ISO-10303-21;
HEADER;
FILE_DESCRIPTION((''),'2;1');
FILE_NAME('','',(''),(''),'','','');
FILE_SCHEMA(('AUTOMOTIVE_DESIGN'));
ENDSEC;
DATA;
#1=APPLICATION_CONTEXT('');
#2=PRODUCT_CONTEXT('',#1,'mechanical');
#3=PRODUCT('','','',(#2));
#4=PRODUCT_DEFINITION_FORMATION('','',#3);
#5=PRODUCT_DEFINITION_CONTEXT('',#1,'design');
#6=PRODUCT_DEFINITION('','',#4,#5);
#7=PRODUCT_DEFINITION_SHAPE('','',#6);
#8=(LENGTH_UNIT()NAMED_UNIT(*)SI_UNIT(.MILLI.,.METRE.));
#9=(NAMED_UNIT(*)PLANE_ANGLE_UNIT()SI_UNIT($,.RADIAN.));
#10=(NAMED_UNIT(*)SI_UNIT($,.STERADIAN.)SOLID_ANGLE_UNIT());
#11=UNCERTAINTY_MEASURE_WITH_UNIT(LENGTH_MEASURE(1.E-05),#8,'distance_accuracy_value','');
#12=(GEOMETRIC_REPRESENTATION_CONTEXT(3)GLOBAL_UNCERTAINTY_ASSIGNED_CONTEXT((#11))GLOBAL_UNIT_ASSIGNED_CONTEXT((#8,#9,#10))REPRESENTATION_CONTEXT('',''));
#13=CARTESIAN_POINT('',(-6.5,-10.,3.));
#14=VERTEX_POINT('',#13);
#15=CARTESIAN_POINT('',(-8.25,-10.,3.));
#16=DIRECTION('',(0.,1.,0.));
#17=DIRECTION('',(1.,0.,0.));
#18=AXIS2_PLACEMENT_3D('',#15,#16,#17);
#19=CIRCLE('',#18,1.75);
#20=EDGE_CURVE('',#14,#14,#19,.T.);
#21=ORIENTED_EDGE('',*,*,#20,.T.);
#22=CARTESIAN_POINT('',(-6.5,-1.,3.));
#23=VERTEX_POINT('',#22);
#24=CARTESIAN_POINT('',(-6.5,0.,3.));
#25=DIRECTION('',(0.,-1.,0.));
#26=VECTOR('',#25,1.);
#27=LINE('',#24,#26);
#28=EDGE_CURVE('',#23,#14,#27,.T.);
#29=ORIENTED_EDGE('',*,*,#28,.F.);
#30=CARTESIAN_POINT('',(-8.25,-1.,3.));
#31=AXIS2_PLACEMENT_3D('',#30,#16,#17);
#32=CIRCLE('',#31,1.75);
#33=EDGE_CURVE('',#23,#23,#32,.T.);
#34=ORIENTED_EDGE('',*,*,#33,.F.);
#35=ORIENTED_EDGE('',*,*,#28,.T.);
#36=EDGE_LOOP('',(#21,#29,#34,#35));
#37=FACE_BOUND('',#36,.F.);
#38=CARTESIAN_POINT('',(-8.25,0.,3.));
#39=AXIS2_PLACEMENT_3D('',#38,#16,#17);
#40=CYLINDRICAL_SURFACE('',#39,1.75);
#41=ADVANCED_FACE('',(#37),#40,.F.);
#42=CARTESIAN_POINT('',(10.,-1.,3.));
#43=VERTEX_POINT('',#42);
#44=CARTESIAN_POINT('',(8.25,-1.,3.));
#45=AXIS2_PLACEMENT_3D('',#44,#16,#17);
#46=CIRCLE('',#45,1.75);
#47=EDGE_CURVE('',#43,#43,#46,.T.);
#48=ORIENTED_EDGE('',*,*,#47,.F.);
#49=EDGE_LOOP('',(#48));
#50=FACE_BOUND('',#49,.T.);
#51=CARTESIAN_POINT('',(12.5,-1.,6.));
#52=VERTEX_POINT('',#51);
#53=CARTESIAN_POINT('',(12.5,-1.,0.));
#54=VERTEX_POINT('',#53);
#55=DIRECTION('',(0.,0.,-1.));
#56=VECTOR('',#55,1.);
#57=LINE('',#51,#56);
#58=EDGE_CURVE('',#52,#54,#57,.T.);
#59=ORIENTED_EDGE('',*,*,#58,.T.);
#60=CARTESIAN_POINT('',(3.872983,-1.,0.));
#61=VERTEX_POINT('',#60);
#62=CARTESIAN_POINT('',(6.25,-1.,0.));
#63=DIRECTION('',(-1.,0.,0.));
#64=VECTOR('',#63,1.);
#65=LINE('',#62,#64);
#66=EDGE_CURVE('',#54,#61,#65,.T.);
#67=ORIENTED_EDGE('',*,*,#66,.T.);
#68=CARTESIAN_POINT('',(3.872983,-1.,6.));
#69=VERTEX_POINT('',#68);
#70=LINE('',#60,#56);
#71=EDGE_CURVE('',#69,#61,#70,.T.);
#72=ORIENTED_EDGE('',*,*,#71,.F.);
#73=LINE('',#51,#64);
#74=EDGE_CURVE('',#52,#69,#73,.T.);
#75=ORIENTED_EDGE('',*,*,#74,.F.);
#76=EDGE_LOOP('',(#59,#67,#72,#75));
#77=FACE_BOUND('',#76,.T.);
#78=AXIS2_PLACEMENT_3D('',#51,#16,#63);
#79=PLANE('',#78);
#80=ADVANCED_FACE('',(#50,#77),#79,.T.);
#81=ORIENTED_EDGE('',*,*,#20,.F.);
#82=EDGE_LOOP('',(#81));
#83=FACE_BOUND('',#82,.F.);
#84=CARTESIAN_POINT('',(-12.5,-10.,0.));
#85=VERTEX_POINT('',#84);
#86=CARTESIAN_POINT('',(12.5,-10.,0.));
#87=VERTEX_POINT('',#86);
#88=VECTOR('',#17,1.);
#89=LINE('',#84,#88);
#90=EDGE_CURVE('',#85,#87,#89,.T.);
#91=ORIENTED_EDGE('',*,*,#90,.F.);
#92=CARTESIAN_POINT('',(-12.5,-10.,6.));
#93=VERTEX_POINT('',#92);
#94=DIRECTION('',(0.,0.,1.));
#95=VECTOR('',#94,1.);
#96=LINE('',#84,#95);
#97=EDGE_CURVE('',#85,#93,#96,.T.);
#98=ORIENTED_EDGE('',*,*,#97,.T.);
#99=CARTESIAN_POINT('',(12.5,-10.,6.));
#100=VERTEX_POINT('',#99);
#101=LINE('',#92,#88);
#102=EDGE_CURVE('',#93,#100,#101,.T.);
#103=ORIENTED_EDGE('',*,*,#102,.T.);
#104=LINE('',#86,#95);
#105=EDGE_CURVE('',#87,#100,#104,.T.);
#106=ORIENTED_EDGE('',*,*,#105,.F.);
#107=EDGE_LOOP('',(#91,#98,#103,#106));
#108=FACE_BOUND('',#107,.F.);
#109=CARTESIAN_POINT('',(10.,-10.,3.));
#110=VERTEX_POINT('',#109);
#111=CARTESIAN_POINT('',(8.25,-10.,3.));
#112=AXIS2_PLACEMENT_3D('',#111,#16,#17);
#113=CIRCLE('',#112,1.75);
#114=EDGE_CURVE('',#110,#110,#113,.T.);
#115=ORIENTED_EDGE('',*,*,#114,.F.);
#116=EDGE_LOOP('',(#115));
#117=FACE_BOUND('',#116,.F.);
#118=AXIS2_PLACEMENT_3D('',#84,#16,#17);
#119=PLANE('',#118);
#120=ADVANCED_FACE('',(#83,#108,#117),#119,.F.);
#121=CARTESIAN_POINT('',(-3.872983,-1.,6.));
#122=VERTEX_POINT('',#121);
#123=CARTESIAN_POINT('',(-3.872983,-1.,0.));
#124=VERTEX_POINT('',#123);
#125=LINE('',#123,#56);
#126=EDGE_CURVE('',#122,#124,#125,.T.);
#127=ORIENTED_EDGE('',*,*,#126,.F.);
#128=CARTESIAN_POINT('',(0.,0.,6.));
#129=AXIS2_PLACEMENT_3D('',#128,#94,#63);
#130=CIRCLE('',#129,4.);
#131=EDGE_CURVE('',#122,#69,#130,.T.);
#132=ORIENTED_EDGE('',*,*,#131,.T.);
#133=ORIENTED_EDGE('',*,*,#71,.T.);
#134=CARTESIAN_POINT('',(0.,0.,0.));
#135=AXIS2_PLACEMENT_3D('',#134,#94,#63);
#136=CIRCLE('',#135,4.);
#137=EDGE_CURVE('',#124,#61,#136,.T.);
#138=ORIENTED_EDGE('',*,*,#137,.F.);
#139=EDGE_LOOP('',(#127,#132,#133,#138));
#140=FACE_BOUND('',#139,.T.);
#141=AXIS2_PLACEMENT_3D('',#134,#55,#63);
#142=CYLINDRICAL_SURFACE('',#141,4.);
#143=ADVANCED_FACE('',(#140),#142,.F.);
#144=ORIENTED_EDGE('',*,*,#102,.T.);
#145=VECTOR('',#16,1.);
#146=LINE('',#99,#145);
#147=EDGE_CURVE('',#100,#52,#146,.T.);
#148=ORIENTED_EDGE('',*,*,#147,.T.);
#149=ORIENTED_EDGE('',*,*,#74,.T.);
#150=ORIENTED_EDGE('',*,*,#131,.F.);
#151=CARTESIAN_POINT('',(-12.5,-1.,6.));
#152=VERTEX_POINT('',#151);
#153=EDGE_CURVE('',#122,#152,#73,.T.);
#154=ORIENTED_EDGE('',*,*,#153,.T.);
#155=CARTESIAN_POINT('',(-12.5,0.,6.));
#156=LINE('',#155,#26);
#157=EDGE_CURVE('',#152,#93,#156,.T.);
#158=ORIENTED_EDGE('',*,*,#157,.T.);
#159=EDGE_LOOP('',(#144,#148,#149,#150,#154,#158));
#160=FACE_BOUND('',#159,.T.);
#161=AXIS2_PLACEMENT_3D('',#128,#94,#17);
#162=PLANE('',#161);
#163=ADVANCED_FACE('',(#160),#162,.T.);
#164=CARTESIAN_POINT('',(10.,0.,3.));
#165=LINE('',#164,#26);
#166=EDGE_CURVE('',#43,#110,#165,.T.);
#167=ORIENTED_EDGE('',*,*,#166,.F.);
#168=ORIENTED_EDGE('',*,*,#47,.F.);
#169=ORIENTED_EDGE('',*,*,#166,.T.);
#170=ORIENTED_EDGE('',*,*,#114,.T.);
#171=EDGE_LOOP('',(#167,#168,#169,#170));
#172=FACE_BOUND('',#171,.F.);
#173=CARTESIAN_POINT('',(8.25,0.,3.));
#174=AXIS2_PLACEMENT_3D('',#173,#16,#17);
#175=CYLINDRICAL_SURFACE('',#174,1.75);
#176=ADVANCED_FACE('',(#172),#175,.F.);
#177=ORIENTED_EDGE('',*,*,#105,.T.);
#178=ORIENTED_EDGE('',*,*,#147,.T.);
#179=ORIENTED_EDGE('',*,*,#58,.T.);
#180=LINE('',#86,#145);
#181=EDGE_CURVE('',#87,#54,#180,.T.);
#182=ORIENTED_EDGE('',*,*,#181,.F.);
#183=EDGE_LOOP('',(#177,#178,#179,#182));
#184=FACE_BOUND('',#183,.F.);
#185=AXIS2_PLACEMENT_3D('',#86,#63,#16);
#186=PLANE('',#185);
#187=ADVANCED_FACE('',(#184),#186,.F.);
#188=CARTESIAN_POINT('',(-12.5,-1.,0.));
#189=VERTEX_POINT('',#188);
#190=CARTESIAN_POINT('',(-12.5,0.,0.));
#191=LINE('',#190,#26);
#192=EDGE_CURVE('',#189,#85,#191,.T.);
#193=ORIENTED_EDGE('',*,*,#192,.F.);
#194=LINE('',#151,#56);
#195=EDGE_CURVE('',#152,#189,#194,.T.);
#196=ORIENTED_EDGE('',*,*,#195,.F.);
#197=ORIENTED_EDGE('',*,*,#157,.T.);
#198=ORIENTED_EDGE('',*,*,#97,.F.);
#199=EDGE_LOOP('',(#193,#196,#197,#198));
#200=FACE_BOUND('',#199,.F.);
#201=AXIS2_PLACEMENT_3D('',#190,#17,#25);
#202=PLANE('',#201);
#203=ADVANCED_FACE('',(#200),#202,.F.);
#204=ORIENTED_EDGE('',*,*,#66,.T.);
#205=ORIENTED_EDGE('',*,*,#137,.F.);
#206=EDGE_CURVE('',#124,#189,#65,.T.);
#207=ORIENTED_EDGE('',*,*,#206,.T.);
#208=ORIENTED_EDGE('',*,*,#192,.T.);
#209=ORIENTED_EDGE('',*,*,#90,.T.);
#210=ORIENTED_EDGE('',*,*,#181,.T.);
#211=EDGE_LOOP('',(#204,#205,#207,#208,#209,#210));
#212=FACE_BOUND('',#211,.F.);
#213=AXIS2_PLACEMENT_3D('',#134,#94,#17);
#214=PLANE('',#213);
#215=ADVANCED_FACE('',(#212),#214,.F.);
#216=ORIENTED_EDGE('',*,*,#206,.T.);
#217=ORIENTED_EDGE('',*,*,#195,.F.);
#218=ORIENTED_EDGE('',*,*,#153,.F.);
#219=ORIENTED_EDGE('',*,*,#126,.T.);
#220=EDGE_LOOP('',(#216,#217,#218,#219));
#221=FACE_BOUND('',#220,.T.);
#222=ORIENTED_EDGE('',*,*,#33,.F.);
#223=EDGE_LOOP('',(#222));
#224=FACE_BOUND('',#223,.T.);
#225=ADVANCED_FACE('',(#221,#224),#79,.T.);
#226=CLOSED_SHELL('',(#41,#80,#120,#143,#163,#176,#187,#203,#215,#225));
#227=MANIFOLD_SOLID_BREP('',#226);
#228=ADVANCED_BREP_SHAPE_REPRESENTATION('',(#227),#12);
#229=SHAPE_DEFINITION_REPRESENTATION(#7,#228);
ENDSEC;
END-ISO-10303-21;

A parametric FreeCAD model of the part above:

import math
import FreeCAD as App
import Part
import Sketcher
from FreeCAD import Vector


def add_polygon(sketch, points):
    """Adds a closed chain of lines whose ends are joined by coincident constraints."""
    first, n = sketch.GeometryCount, len(points)
    for a, b in zip(points, points[1:] + points[:1]):
        sketch.addGeometry(Part.LineSegment(App.Vector(*a, 0), App.Vector(*b, 0)), False)
    for i in range(n):
        sketch.addConstraint(Sketcher.Constraint("Coincident", first + i, 2, first + (i + 1) % n, 1))

doc = App.newDocument("Part")
body = doc.addObject("PartDesign::Body", "Body")

sketch1 = body.newObject("Sketcher::SketchObject", "Sketch")
sketch1.AttachmentSupport = (doc.getObject("XY_Plane"), [""])
sketch1.MapMode = "FlatFace"
sketch1.addGeometry([
    Part.ArcOfCircle(Part.Circle(Vector(0, 0, 0), Vector(0, 0, 1), 4), math.radians(180), math.radians(360)),
    Part.LineSegment(Vector(-4, 0, 0), Vector(-12.5, 0, 0)),
    Part.LineSegment(Vector(-12.5, 0, 0), Vector(-12.5, -10, 0)),
    Part.LineSegment(Vector(-12.5, -10, 0), Vector(12.5, -10, 0)),
    Part.LineSegment(Vector(12.5, -10, 0), Vector(12.5, 0, 0)),
    Part.LineSegment(Vector(12.5, 0, 0), Vector(4, 0, 0)),
], False)
sketch1.addConstraint([
    Sketcher.Constraint("Coincident", 0, 1, 1, 1),
    Sketcher.Constraint("Coincident", 1, 2, 2, 1),
    Sketcher.Constraint("Coincident", 2, 2, 3, 1),
    Sketcher.Constraint("Coincident", 3, 2, 4, 1),
    Sketcher.Constraint("Coincident", 4, 2, 5, 1),
    Sketcher.Constraint("Coincident", 5, 2, 0, 2),
    Sketcher.Constraint("Horizontal", 1),
    Sketcher.Constraint("Vertical", 2),
    Sketcher.Constraint("Horizontal", 3),
    Sketcher.Constraint("Vertical", 4),
    Sketcher.Constraint("Horizontal", 5),
    Sketcher.Constraint("Coincident", 0, 3, -1, 1),
    Sketcher.Constraint("Symmetric", 1, 2, 4, 2, -1, 1),
    Sketcher.Constraint("PointOnObject", 0, 1, -1),
    Sketcher.Constraint("Radius", 0, 4.0),
    Sketcher.Constraint("DistanceX", 3, 1, 3, 2, 25.0),
    Sketcher.Constraint("DistanceY", 2, 2, 2, 1, 10.0),
])
pad1 = body.newObject("PartDesign::Pad", "Pad")
pad1.Profile = sketch1
pad1.Length = 6

sketch2 = body.newObject("Sketcher::SketchObject", "Sketch001")
sketch2.AttachmentSupport = (doc.getObject("XZ_Plane"), [""])
sketch2.MapMode = "FlatFace"
sketch2.addGeometry([
    Part.Circle(Vector(-8.2, 3, 0), Vector(0, 0, 1), 1.8),
    Part.Circle(Vector(8.2, 3, 0), Vector(0, 0, 1), 1.8),
], False)
sketch2.addConstraint([
    Sketcher.Constraint("Equal", 0, 1),
    Sketcher.Constraint("Symmetric", 0, 3, 1, 3, -2),
    Sketcher.Constraint("Diameter", 0, 3.5),
    Sketcher.Constraint("DistanceY", -1, 1, 0, 3, 3.0),
    Sketcher.Constraint("DistanceX", 0, 3, 1, 3, 16.5),
])
pocket1 = body.newObject("PartDesign::Pocket", "Pocket")
pocket1.Profile = sketch2
pocket1.Type = "ThroughAll"
pocket1.Reversed = True

sketch3 = body.newObject("Sketcher::SketchObject", "Sketch002")
sketch3.AttachmentSupport = (doc.getObject("XY_Plane"), [""])
sketch3.MapMode = "FlatFace"
sketch3.AttachmentOffset = App.Placement(Vector(0, 0, 6), App.Rotation())
add_polygon(sketch3, [(-12.5, -1), (12.5, -1), (12.5, 0), (-12.5, 0)])
sketch3.addConstraint([
    Sketcher.Constraint("Horizontal", 0),
    Sketcher.Constraint("Vertical", 1),
    Sketcher.Constraint("Horizontal", 2),
    Sketcher.Constraint("Vertical", 3),
    Sketcher.Constraint("Symmetric", 1, 2, 2, 2, -1, 1),
    Sketcher.Constraint("DistanceY", 1, 1, 1, 2, 1.0),
    Sketcher.Constraint("DistanceX", 0, 1, 0, 2, 25.0),
])
pocket2 = body.newObject("PartDesign::Pocket", "Pocket001")
pocket2.Profile = sketch3
pocket2.Type = "ThroughAll"

doc.recompute()
